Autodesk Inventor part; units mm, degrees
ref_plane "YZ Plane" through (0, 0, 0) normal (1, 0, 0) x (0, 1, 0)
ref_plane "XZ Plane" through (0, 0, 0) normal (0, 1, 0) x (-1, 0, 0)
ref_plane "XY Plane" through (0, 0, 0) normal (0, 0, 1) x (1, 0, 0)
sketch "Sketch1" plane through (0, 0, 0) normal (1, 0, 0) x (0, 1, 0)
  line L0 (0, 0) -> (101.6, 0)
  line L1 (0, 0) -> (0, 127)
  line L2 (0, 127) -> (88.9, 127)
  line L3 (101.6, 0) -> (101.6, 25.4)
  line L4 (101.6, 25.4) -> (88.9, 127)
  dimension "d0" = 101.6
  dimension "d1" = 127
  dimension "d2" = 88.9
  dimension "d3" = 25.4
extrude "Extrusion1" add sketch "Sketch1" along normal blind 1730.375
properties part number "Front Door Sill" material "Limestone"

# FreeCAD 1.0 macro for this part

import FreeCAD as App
import Part
import Sketcher
from FreeCAD import Vector
Q = App.Units.Quantity

doc = App.newDocument("Part")
body = doc.addObject("PartDesign::Body", "Body")

sketch1 = doc.addObject("Sketcher::SketchObject", "Sketch")
body.addObject(sketch1)
sketch1.AttachmentSupport = (doc.YZ_Plane, [""])
sketch1.MapMode = "FlatFace"
sketch1.addGeometry([
    Part.LineSegment(Vector(0, 127, 0), Vector(0, 0, 0)),
    Part.LineSegment(Vector(0, 0, 0), Vector(101.6, 0, 0)),
    Part.LineSegment(Vector(101.6, 0, 0), Vector(101.6, 25.4, 0)),
    Part.LineSegment(Vector(101.6, 25.4, 0), Vector(88.9, 127, 0)),
    Part.LineSegment(Vector(88.9, 127, 0), Vector(0, 127, 0)),
], False)
sketch1.addConstraint([
    Sketcher.Constraint("Coincident", 0, 2, 1, 1),
    Sketcher.Constraint("Coincident", 1, 2, 2, 1),
    Sketcher.Constraint("Coincident", 2, 2, 3, 1),
    Sketcher.Constraint("Coincident", 3, 2, 4, 1),
    Sketcher.Constraint("Coincident", 4, 2, 0, 1),
    Sketcher.Constraint("Vertical", 0),
    Sketcher.Constraint("Horizontal", 1),
    Sketcher.Constraint("Vertical", 2),
    Sketcher.Constraint("Horizontal", 4),
    Sketcher.Constraint("Coincident", 0, 2, -1, 1),
    Sketcher.Constraint("DistanceX", 1, 1, 1, 2, Q("4 in")),
    Sketcher.Constraint("DistanceY", 0, 2, 0, 1, Q("5 in")),
    Sketcher.Constraint("DistanceY", 2, 1, 2, 2, Q("1 in")),
    Sketcher.Constraint("DistanceX", 4, 2, 4, 1, Q("3.5 in")),
])
pad1 = doc.addObject("PartDesign::Pad", "Pad")
body.addObject(pad1)
pad1.Profile = sketch1
pad1.Length = Q("68.125 in")

doc.recompute()
